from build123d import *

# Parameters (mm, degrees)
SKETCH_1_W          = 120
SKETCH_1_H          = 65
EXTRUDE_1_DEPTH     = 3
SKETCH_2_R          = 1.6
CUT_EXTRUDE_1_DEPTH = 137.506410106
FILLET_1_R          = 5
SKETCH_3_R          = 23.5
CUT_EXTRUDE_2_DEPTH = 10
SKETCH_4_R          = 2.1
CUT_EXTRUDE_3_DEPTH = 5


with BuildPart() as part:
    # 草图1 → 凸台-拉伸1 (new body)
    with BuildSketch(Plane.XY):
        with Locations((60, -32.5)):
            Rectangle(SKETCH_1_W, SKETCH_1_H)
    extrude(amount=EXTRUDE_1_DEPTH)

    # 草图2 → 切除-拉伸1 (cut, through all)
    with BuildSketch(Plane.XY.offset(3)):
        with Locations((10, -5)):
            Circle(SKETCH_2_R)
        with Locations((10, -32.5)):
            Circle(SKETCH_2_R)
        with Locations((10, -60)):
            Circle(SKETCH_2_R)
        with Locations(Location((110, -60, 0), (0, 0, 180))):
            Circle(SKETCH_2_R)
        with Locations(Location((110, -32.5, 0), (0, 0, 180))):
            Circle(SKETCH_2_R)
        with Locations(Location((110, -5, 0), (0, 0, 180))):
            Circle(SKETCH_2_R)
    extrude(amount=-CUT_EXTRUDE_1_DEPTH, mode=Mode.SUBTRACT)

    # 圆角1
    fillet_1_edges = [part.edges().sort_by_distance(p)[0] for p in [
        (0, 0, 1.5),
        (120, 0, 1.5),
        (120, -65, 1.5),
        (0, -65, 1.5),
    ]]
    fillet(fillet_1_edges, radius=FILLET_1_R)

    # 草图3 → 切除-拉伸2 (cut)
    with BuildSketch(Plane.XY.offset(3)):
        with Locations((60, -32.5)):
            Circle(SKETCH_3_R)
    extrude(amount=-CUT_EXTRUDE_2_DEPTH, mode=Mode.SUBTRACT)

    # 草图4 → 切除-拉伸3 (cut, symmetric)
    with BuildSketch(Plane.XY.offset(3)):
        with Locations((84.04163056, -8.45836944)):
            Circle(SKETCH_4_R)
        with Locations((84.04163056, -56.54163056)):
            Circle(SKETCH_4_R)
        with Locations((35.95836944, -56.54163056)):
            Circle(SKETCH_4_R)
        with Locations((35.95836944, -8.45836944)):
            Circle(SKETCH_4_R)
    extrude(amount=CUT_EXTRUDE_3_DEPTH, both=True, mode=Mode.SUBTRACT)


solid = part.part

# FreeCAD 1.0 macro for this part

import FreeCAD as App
import Part
import Sketcher
Q = App.Units.Quantity


def edges_at(feature, points):
    """Names of the edges that pass closest to the given points."""
    edges = feature.Shape.Edges
    near = lambda p: min(range(len(edges)), key=lambda i: edges[i].distToShape(Part.Vertex(*p))[0])
    return sorted({f"Edge{near(p) + 1}" for p in points})


def add_polygon(sketch, points):
    """Adds a closed chain of lines whose ends are joined by coincident constraints."""
    first, n = sketch.GeometryCount, len(points)
    for a, b in zip(points, points[1:] + points[:1]):
        sketch.addGeometry(Part.LineSegment(App.Vector(*a, 0), App.Vector(*b, 0)), False)
    for i in range(n):
        sketch.addConstraint(Sketcher.Constraint("Coincident", first + i, 2, first + (i + 1) % n, 1))

doc = App.newDocument("Part")
body = doc.addObject("PartDesign::Body", "Body")

# Sketch on XY plane
sketch1 = body.newObject("Sketcher::SketchObject", "Sketch")
sketch1.AttachmentSupport = (doc.getObject("XY_Plane"), [""])
sketch1.MapMode = "FlatFace"
add_polygon(sketch1, [(0, 0), (0, -65), (120, -65), (120, 0)])  # lines 0-3
sketch1.addConstraint([
    Sketcher.Constraint("Vertical", 0),
    Sketcher.Constraint("Horizontal", 1),
    Sketcher.Constraint("Vertical", 2),
    Sketcher.Constraint("Horizontal", 3),
    Sketcher.Constraint("Coincident", 3, 2, -1, 1),
    Sketcher.Constraint("DistanceX", 1, 1, 1, 2, Q("120 mm")),
    Sketcher.Constraint("DistanceY", 0, 2, 0, 1, Q("65 mm")),
])
pad1 = body.newObject("PartDesign::Pad", "Pad")
pad1.Profile = sketch1
pad1.Length = 3

# Sketch on XY plane
sketch2 = body.newObject("Sketcher::SketchObject", "Sketch001")
sketch2.AttachmentSupport = (doc.getObject("XY_Plane"), [""])
sketch2.MapMode = "FlatFace"
sketch2.AttachmentOffset = App.Placement(App.Vector(0, 0, 3), App.Rotation())
sketch2.addGeometry([
    Part.Circle(App.Vector(10, -5, 0), App.Vector(0, 0, 1), 1.6),  # 0
    Part.Circle(App.Vector(10, -32.5, 0), App.Vector(0, 0, 1), 1.6),  # 1
    Part.Circle(App.Vector(10, -60, 0), App.Vector(0, 0, 1), 1.6),  # 2
    Part.Circle(App.Vector(110, -60, 0), App.Vector(0, 0, 1), 1.6),  # 3
    Part.Circle(App.Vector(110, -32.5, 0), App.Vector(0, 0, 1), 1.6),  # 4
    Part.Circle(App.Vector(110, -5, 0), App.Vector(0, 0, 1), 1.6),  # 5
], False)
sketch2.addConstraint([
    Sketcher.Constraint("Equal", 0, 1),
    Sketcher.Constraint("Equal", 1, 2),
    Sketcher.Constraint("Equal", 2, 3),
    Sketcher.Constraint("Equal", 3, 4),
    Sketcher.Constraint("Equal", 4, 5),
    Sketcher.Constraint("Horizontal", 2, 3, 3, 3),
    Sketcher.Constraint("Horizontal", 1, 3, 4, 3),
    Sketcher.Constraint("Horizontal", 0, 3, 5, 3),
    Sketcher.Constraint("Vertical", 0, 3, 1, 3),
    Sketcher.Constraint("Vertical", 1, 3, 2, 3),
    Sketcher.Constraint("Vertical", 3, 3, 4, 3),
    Sketcher.Constraint("Vertical", 4, 3, 5, 3),
    Sketcher.Constraint("Diameter", 0, Q("3.2 mm")),
    Sketcher.Constraint("DistanceX", -1, 1, 0, 3, Q("10 mm")),
    Sketcher.Constraint("DistanceY", 0, 3, -1, 1, Q("5 mm")),
    Sketcher.Constraint("DistanceY", 2, 3, -1, 1, Q("60 mm")),
    Sketcher.Constraint("DistanceX", -1, 1, 3, 3, Q("110 mm")),
    Sketcher.Constraint("DistanceY", 1, 3, -1, 1, Q("32.5 mm")),
])
pocket1 = body.newObject("PartDesign::Pocket", "Pocket")
pocket1.Profile = sketch2
pocket1.Type = "ThroughAll"
doc.recompute()

fillet = body.newObject("PartDesign::Fillet", "Fillet")
fillet.Base = (pocket1, edges_at(pocket1, [
    (0, 0, 1.5),
    (120, 0, 1.5),
    (120, -65, 1.5),
    (0, -65, 1.5),
]))
fillet.Radius = 5

# Sketch on XY plane
sketch3 = body.newObject("Sketcher::SketchObject", "Sketch002")
sketch3.AttachmentSupport = (doc.getObject("XY_Plane"), [""])
sketch3.MapMode = "FlatFace"
sketch3.AttachmentOffset = App.Placement(App.Vector(0, 0, 3), App.Rotation())
sketch3.addGeometry(Part.Circle(App.Vector(60, -32, 0), App.Vector(0, 0, 1), 24), False)
sketch3.addConstraint([
    Sketcher.Constraint("Diameter", 0, Q("47 mm")),
    Sketcher.Constraint("DistanceX", -1, 1, 0, 3, Q("60 mm")),
    Sketcher.Constraint("DistanceY", 0, 3, -1, 1, Q("32.5 mm")),
])
pocket2 = body.newObject("PartDesign::Pocket", "Pocket001")
pocket2.Profile = sketch3
pocket2.Length = 10

# Sketch on XY plane
sketch4 = body.newObject("Sketcher::SketchObject", "Sketch003")
sketch4.AttachmentSupport = (doc.getObject("XY_Plane"), [""])
sketch4.MapMode = "FlatFace"
sketch4.AttachmentOffset = App.Placement(App.Vector(0, 0, 3), App.Rotation())
sketch4.addGeometry([
    Part.Circle(App.Vector(84, -8.5, 0), App.Vector(0, 0, 1), 2.1),
    Part.Circle(App.Vector(84, -56.5, 0), App.Vector(0, 0, 1), 2.1),
    Part.Circle(App.Vector(36, -56.5, 0), App.Vector(0, 0, 1), 2.1),
    Part.Circle(App.Vector(36, -8.5, 0), App.Vector(0, 0, 1), 2.1),
], False)
sketch4.addConstraint([
    Sketcher.Constraint("Equal", 0, 1),
    Sketcher.Constraint("Equal", 1, 2),
    Sketcher.Constraint("Equal", 2, 3),
    Sketcher.Constraint("Horizontal", 1, 3, 2, 3),
    Sketcher.Constraint("Horizontal", 0, 3, 3, 3),
    Sketcher.Constraint("Vertical", 0, 3, 1, 3),
    Sketcher.Constraint("Vertical", 2, 3, 3, 3),
    Sketcher.Constraint("Diameter", 0, Q("4.2 mm")),
    Sketcher.Constraint("DistanceX", -1, 1, 0, 3, Q("84.041631 mm")),
    Sketcher.Constraint("DistanceY", 0, 3, -1, 1, Q("8.458369 mm")),
    Sketcher.Constraint("DistanceY", 1, 3, -1, 1, Q("56.541631 mm")),
    Sketcher.Constraint("DistanceX", -1, 1, 2, 3, Q("35.958369 mm")),
])
pocket3 = body.newObject("PartDesign::Pocket", "Pocket002")
pocket3.Profile = sketch4
pocket3.Length = 10
pocket3.Midplane = True

doc.recompute()
